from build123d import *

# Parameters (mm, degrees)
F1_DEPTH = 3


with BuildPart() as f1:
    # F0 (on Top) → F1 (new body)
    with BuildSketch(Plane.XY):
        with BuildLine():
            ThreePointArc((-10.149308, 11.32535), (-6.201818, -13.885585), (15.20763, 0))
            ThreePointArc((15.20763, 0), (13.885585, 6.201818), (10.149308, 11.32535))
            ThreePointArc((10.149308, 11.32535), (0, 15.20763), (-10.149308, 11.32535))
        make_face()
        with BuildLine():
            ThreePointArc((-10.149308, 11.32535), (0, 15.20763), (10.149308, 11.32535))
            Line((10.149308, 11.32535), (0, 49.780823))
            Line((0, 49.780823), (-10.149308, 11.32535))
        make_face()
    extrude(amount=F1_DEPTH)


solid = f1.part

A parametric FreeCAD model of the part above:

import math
import FreeCAD as App
import Part
import Sketcher

V = App.Vector

doc = App.newDocument("Part")
body = doc.addObject("PartDesign::Body", "Body")

# Sketch on XY plane
sketch1 = doc.addObject("Sketcher::SketchObject", "Sketch")
body.addObject(sketch1)
sketch1.AttachmentSupport = (doc.XY_Plane, [""])
sketch1.MapMode = "FlatFace"
sketch1.addGeometry([
    Part.ArcOfCircle(Part.Circle(V(0, 0, 0), V(0, 0, 1), 15), math.radians(132), math.radians(360)),
    Part.ArcOfCircle(Part.Circle(V(0, 0, 0), V(0, 0, 1), 15), math.radians(0), math.radians(48)),
    Part.LineSegment(V(10, 11, 0), V(0, 50, 0)),
    Part.LineSegment(V(0, 50, 0), V(-10, 11, 0)),
], False)
sketch1.addConstraint([
    Sketcher.Constraint("Tangent", 0, 2, 1, 1),
    Sketcher.Constraint("Coincident", 1, 2, 2, 1),
    Sketcher.Constraint("Coincident", 2, 2, 3, 1),
    Sketcher.Constraint("Coincident", 3, 2, 0, 1),
    Sketcher.Constraint("Coincident", 0, 3, -1, 1),
    Sketcher.Constraint("Symmetric", 1, 2, 3, 2, -2),
    Sketcher.Constraint("PointOnObject", 0, 2, -1),
    Sketcher.Constraint("PointOnObject", 2, 2, -2),
    Sketcher.Constraint("Radius", 0, 15.20763),
    Sketcher.Constraint("Distance", 2, 39.77225),
    Sketcher.Constraint("DistanceY", -1, 1, 1, 2, 11.32535),
])
pad1 = doc.addObject("PartDesign::Pad", "Pad")
body.addObject(pad1)
pad1.Profile = sketch1
pad1.Length = 3

doc.recompute()
